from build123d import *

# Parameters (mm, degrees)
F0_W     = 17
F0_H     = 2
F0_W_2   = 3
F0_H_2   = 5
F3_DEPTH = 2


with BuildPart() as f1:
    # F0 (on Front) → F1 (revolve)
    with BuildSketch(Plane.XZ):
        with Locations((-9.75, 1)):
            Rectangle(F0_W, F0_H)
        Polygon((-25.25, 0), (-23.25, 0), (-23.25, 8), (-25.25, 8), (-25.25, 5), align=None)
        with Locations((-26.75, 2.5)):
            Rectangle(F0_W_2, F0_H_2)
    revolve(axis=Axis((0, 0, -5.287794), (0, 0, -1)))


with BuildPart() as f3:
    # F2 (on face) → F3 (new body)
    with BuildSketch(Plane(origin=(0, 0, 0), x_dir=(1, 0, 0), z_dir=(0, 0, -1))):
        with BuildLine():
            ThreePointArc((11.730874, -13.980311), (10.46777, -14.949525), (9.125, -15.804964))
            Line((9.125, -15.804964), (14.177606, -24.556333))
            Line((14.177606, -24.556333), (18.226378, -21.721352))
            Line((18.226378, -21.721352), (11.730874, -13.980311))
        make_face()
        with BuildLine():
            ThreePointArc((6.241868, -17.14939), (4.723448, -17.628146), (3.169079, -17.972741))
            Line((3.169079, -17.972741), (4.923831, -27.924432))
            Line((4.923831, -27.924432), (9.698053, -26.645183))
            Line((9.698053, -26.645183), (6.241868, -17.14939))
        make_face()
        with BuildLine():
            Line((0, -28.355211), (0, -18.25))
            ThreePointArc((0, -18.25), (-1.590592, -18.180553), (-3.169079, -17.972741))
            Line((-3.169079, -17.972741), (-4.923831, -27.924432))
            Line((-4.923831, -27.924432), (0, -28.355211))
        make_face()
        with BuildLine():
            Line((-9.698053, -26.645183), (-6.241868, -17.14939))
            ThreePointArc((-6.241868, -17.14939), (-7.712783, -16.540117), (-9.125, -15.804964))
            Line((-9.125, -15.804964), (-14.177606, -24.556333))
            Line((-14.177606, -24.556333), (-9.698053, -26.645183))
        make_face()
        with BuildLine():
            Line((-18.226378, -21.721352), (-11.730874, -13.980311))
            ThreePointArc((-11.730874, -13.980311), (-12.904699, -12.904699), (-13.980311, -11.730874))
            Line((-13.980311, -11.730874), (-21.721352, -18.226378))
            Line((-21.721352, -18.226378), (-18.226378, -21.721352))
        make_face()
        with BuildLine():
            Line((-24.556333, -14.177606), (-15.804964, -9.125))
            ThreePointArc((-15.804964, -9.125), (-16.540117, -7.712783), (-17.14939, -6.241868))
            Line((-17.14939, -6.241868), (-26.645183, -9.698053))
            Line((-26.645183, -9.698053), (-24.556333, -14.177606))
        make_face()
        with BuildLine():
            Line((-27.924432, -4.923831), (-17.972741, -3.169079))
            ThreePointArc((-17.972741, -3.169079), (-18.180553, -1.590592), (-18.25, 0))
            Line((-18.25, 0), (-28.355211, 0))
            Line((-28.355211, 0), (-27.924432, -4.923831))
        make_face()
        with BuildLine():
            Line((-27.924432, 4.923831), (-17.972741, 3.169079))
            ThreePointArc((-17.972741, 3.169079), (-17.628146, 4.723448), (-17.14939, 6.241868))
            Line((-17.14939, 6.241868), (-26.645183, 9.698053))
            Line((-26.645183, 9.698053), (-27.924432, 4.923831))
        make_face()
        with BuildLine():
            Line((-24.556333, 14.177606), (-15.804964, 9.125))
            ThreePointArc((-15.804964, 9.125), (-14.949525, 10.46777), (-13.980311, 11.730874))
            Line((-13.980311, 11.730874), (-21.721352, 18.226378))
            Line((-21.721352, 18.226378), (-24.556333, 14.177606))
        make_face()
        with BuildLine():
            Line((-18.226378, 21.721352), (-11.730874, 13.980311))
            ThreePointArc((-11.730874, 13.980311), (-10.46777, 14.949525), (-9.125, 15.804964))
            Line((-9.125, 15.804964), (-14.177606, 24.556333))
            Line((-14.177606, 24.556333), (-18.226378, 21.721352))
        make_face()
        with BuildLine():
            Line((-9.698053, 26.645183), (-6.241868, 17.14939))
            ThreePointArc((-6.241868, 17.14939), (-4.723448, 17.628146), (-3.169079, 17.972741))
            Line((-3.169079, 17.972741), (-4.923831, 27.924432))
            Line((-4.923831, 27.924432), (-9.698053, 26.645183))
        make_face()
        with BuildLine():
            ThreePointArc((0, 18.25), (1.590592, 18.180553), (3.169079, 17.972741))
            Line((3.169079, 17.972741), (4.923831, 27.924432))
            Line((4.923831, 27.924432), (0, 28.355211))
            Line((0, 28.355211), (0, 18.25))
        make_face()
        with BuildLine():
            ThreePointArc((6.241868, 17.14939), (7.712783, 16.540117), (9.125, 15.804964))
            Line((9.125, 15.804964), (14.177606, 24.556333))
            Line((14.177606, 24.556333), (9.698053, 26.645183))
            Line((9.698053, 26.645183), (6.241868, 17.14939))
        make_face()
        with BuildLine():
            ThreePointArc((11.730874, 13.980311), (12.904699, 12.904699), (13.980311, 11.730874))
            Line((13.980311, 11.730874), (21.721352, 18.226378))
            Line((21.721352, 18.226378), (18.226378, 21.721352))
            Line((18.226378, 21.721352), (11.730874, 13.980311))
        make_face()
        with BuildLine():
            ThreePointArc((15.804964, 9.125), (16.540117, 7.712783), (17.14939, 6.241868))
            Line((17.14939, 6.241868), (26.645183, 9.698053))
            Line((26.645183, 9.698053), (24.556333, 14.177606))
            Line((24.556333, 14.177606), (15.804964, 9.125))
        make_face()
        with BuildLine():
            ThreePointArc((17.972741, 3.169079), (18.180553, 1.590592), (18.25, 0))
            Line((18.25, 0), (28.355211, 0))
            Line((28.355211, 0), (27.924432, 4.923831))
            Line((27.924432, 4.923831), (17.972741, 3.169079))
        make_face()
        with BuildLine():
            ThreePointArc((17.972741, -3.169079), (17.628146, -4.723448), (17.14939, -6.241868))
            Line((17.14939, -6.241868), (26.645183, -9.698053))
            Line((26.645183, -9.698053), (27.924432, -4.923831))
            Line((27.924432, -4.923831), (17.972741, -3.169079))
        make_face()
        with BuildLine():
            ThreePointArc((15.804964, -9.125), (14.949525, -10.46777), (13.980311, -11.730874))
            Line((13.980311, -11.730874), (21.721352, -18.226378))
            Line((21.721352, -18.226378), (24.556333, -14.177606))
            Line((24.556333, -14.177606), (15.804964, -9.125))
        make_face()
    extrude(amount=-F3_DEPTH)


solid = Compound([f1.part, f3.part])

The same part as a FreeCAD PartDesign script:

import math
import FreeCAD as App
import Part
import Sketcher
Q = App.Units.Quantity

doc = App.newDocument("Part")
body = doc.addObject("PartDesign::Body", "Body")
body.AllowCompound = True

# Sketch on XZ plane
sketch1 = body.newObject("Sketcher::SketchObject", "Sketch")
sketch1.AttachmentSupport = (doc.getObject("XZ_Plane"), [""])
sketch1.MapMode = "FlatFace"
sketch1.addGeometry([
    Part.LineSegment(App.Vector(-18.25, 2, 0), App.Vector(-18.25, 0, 0)),  # 0
    Part.LineSegment(App.Vector(-18.25, 0, 0), App.Vector(-1.25, 0, 0)),  # 1
    Part.LineSegment(App.Vector(-1.25, 0, 0), App.Vector(-1.25, 2, 0)),  # 2
    Part.LineSegment(App.Vector(-1.25, 2, 0), App.Vector(-18.25, 2, 0)),  # 3
    Part.LineSegment(App.Vector(-23.25, 0, 0), App.Vector(-23.25, 8, 0)),  # 4
    Part.LineSegment(App.Vector(-23.25, 8, 0), App.Vector(-25.25, 8, 0)),  # 5
    Part.LineSegment(App.Vector(-25.25, 8, 0), App.Vector(-25.25, 5, 0)),  # 6
    Part.LineSegment(App.Vector(-25.25, 5, 0), App.Vector(-28.25, 5, 0)),  # 7
    Part.LineSegment(App.Vector(-28.25, 5, 0), App.Vector(-28.25, 0, 0)),  # 8
    Part.LineSegment(App.Vector(-28.25, 0, 0), App.Vector(-23.25, 0, 0)),  # 9
], False)
sketch1.addConstraint([
    Sketcher.Constraint("Coincident", 0, 2, 1, 1),
    Sketcher.Constraint("Coincident", 1, 2, 2, 1),
    Sketcher.Constraint("Coincident", 2, 2, 3, 1),
    Sketcher.Constraint("Coincident", 3, 2, 0, 1),
    Sketcher.Constraint("Coincident", 4, 2, 5, 1),
    Sketcher.Constraint("Coincident", 5, 2, 6, 1),
    Sketcher.Constraint("Coincident", 6, 2, 7, 1),
    Sketcher.Constraint("Coincident", 7, 2, 8, 1),
    Sketcher.Constraint("Coincident", 8, 2, 9, 1),
    Sketcher.Constraint("Coincident", 9, 2, 4, 1),
    Sketcher.Constraint("Vertical", 0),
    Sketcher.Constraint("Horizontal", 1),
    Sketcher.Constraint("Vertical", 2),
    Sketcher.Constraint("Horizontal", 3),
    Sketcher.Constraint("Vertical", 4),
    Sketcher.Constraint("Horizontal", 5),
    Sketcher.Constraint("Vertical", 6),
    Sketcher.Constraint("Horizontal", 7),
    Sketcher.Constraint("Vertical", 8),
    Sketcher.Constraint("Horizontal", 9),
    Sketcher.Constraint("PointOnObject", 0, 2, -1),
    Sketcher.Constraint("PointOnObject", 8, 2, -1),
    Sketcher.Constraint("Equal", 5, 0),
    Sketcher.Constraint("Equal", 7, 6),
    Sketcher.Constraint("Equal", 9, 8),
    Sketcher.Constraint("DistanceX", 1, 1, 1, 2, 17.0),
    Sketcher.Constraint("DistanceX", 5, 2, 5, 1, 2.0),
    Sketcher.Constraint("DistanceX", 7, 2, 7, 1, 3.0),
    Sketcher.Constraint("DistanceX", 4, 2, 3, 2, 5.0),
    Sketcher.Constraint("DistanceX", 0, 2, -1, 1, 18.25),
])
revolution = body.newObject("PartDesign::Revolution", "Revolution")
revolution.Profile = sketch1
revolution.ReferenceAxis = (sketch1, ["V_Axis"])
revolution.Angle = 360
body2 = doc.addObject("PartDesign::Body", "Body001")
body2.AllowCompound = True

# Sketch on XY plane
sketch2 = body2.newObject("Sketcher::SketchObject", "Sketch001")
sketch2.AttachmentSupport = (doc.getObject("XY_Plane001"), [""])
sketch2.MapMode = "FlatFace"
sketch2.addGeometry([
    Part.ArcOfCircle(Part.Circle(App.Vector(0, 0.000003, 0), App.Vector(0, 0, 1), 18.249998), math.radians(49.999993), math.radians(59.999995)),  # 0
    Part.LineSegment(App.Vector(9.125, 15.804964, 0), App.Vector(14.177606, 24.556333, 0)),  # 1
    Part.LineSegment(App.Vector(14.177606, 24.556333, 0), App.Vector(18.226378, 21.721352, 0)),  # 2
    Part.LineSegment(App.Vector(18.226378, 21.721352, 0), App.Vector(11.730874, 13.980311, 0)),  # 3
    Part.ArcOfCircle(Part.Circle(App.Vector(0.000012, 0.000036, 0), App.Vector(0, 0, 1), 18.249962), math.radians(69.999994), math.radians(80.000017)),  # 4
    Part.LineSegment(App.Vector(3.169079, 17.972741, 0), App.Vector(4.923831, 27.924432, 0)),  # 5
    Part.LineSegment(App.Vector(4.923831, 27.924432, 0), App.Vector(9.698053, 26.645183, 0)),  # 6
    Part.LineSegment(App.Vector(9.698053, 26.645183, 0), App.Vector(6.241868, 17.14939, 0)),  # 7
    Part.LineSegment(App.Vector(0, 28.355211, 0), App.Vector(0, 18.25, 0)),  # 8
    Part.ArcOfCircle(Part.Circle(App.Vector(0.000003, 0, 0), App.Vector(0, 0, 1), 18.25), math.radians(90.00001), math.radians(100.000009)),  # 9
    Part.LineSegment(App.Vector(-3.169079, 17.972741, 0), App.Vector(-4.923831, 27.924432, 0)),  # 10
    Part.LineSegment(App.Vector(-4.923831, 27.924432, 0), App.Vector(0, 28.355211, 0)),  # 11
    Part.LineSegment(App.Vector(-9.698053, 26.645183, 0), App.Vector(-6.241868, 17.14939, 0)),  # 12
    Part.ArcOfCircle(Part.Circle(App.Vector(0.00003, -0.000072, 0), App.Vector(0, 0, 1), 18.250077), math.radians(110.000014), math.radians(119.999969)),  # 13
    Part.LineSegment(App.Vector(-9.125, 15.804964, 0), App.Vector(-14.177606, 24.556333, 0)),  # 14
    Part.LineSegment(App.Vector(-14.177606, 24.556333, 0), App.Vector(-9.698053, 26.645183, 0)),  # 15
    Part.LineSegment(App.Vector(-18.226378, 21.721352, 0), App.Vector(-11.730874, 13.980311, 0)),  # 16
    Part.ArcOfCircle(Part.Circle(App.Vector(-0.000062, 0.000062, 0), App.Vector(0, 0, 1), 18.249913), math.radians(129.999977), math.radians(140.000023)),  # 17
    Part.LineSegment(App.Vector(-13.980311, 11.730874, 0), App.Vector(-21.721352, 18.226378, 0)),  # 18
    Part.LineSegment(App.Vector(-21.721352, 18.226378, 0), App.Vector(-18.226378, 21.721352, 0)),  # 19
    Part.LineSegment(App.Vector(-24.556333, 14.177606, 0), App.Vector(-15.804964, 9.125, 0)),  # 20
    Part.ArcOfCircle(Part.Circle(App.Vector(0.000072, -0.00003, 0), App.Vector(0, 0, 1), 18.250077), math.radians(150.000031), math.radians(159.999986)),  # 21
    Part.LineSegment(App.Vector(-17.14939, 6.241868, 0), App.Vector(-26.645183, 9.698053, 0)),  # 22
    Part.LineSegment(App.Vector(-26.645183, 9.698053, 0), App.Vector(-24.556333, 14.177606, 0)),  # 23
    Part.LineSegment(App.Vector(-27.924432, 4.923831, 0), App.Vector(-17.972741, 3.169079, 0)),  # 24
    Part.ArcOfCircle(Part.Circle(App.Vector(0, -0.000003, 0), App.Vector(0, 0, 1), 18.25), math.radians(169.999991), math.radians(179.99999)),  # 25
    Part.LineSegment(App.Vector(-18.25, 0, 0), App.Vector(-28.355211, 0, 0)),  # 26
    Part.LineSegment(App.Vector(-28.355211, 0, 0), App.Vector(-27.924432, 4.923831, 0)),  # 27
    Part.LineSegment(App.Vector(-27.924432, -4.923831, 0), App.Vector(-17.972741, -3.169079, 0)),  # 28
    Part.ArcOfCircle(Part.Circle(App.Vector(-0.000036, -0.000012, 0), App.Vector(0, 0, 1), 18.249962), math.radians(-170.000017), math.radians(-159.999994)),  # 29
    Part.LineSegment(App.Vector(-17.14939, -6.241868, 0), App.Vector(-26.645183, -9.698053, 0)),  # 30
    Part.LineSegment(App.Vector(-26.645183, -9.698053, 0), App.Vector(-27.924432, -4.923831, 0)),  # 31
    Part.LineSegment(App.Vector(-24.556333, -14.177606, 0), App.Vector(-15.804964, -9.125, 0)),  # 32
    Part.ArcOfCircle(Part.Circle(App.Vector(-0.000003, 0, 0), App.Vector(0, 0, 1), 18.249998), math.radians(-149.999995), math.radians(-139.999993)),  # 33
    Part.LineSegment(App.Vector(-13.980311, -11.730874, 0), App.Vector(-21.721352, -18.226378, 0)),  # 34
    Part.LineSegment(App.Vector(-21.721352, -18.226378, 0), App.Vector(-24.556333, -14.177606, 0)),  # 35
    Part.LineSegment(App.Vector(-18.226378, -21.721352, 0), App.Vector(-11.730874, -13.980311, 0)),  # 36
    Part.ArcOfCircle(Part.Circle(App.Vector(0, -0.000003, 0), App.Vector(0, 0, 1), 18.249998), math.radians(-130.000007), math.radians(-120.000005)),  # 37
    Part.LineSegment(App.Vector(-9.125, -15.804964, 0), App.Vector(-14.177606, -24.556333, 0)),  # 38
    Part.LineSegment(App.Vector(-14.177606, -24.556333, 0), App.Vector(-18.226378, -21.721352, 0)),  # 39
    Part.LineSegment(App.Vector(-9.698053, -26.645183, 0), App.Vector(-6.241868, -17.14939, 0)),  # 40
    Part.ArcOfCircle(Part.Circle(App.Vector(-0.000012, -0.000036, 0), App.Vector(0, 0, 1), 18.249962), math.radians(-110.000006), math.radians(-99.999983)),  # 41
    Part.LineSegment(App.Vector(-3.169079, -17.972741, 0), App.Vector(-4.923831, -27.924432, 0)),  # 42
    Part.LineSegment(App.Vector(-4.923831, -27.924432, 0), App.Vector(-9.698053, -26.645183, 0)),  # 43
    Part.ArcOfCircle(Part.Circle(App.Vector(-0.000003, 0, 0), App.Vector(0, 0, 1), 18.25), math.radians(-89.99999), math.radians(-79.999991)),  # 44
    Part.LineSegment(App.Vector(3.169079, -17.972741, 0), App.Vector(4.923831, -27.924432, 0)),  # 45
    Part.LineSegment(App.Vector(4.923831, -27.924432, 0), App.Vector(0, -28.355211, 0)),  # 46
    Part.LineSegment(App.Vector(0, -28.355211, 0), App.Vector(0, -18.25, 0)),  # 47
    Part.ArcOfCircle(Part.Circle(App.Vector(-0.00003, 0.000072, 0), App.Vector(0, 0, 1), 18.250077), math.radians(-69.999986), math.radians(-60.000031)),  # 48
    Part.LineSegment(App.Vector(9.125, -15.804964, 0), App.Vector(14.177606, -24.556333, 0)),  # 49
    Part.LineSegment(App.Vector(14.177606, -24.556333, 0), App.Vector(9.698053, -26.645183, 0)),  # 50
    Part.LineSegment(App.Vector(9.698053, -26.645183, 0), App.Vector(6.241868, -17.14939, 0)),  # 51
    Part.ArcOfCircle(Part.Circle(App.Vector(0.000062, -0.000062, 0), App.Vector(0, 0, 1), 18.249913), math.radians(-50.000023), math.radians(-39.999977)),  # 52
    Part.LineSegment(App.Vector(13.980311, -11.730874, 0), App.Vector(21.721352, -18.226378, 0)),  # 53
    Part.LineSegment(App.Vector(21.721352, -18.226378, 0), App.Vector(18.226378, -21.721352, 0)),  # 54
    Part.LineSegment(App.Vector(18.226378, -21.721352, 0), App.Vector(11.730874, -13.980311, 0)),  # 55
    Part.ArcOfCircle(Part.Circle(App.Vector(-0.000072, 0.00003, 0), App.Vector(0, 0, 1), 18.250077), math.radians(-29.999969), math.radians(-20.000014)),  # 56
    Part.LineSegment(App.Vector(17.14939, -6.241868, 0), App.Vector(26.645183, -9.698053, 0)),  # 57
    Part.LineSegment(App.Vector(26.645183, -9.698053, 0), App.Vector(24.556333, -14.177606, 0)),  # 58
    Part.LineSegment(App.Vector(24.556333, -14.177606, 0), App.Vector(15.804964, -9.125, 0)),  # 59
    Part.ArcOfCircle(Part.Circle(App.Vector(0, 0.000003, 0), App.Vector(0, 0, 1), 18.25), math.radians(-10.000009), math.radians(-0.00001)),  # 60
    Part.LineSegment(App.Vector(18.25, 0, 0), App.Vector(28.355211, 0, 0)),  # 61
    Part.LineSegment(App.Vector(28.355211, 0, 0), App.Vector(27.924432, -4.923831, 0)),  # 62
    Part.LineSegment(App.Vector(27.924432, -4.923831, 0), App.Vector(17.972741, -3.169079, 0)),  # 63
    Part.ArcOfCircle(Part.Circle(App.Vector(0.000036, 0.000012, 0), App.Vector(0, 0, 1), 18.249962), math.radians(9.999983), math.radians(20.000006)),  # 64
    Part.LineSegment(App.Vector(17.14939, 6.241868, 0), App.Vector(26.645183, 9.698053, 0)),  # 65
    Part.LineSegment(App.Vector(26.645183, 9.698053, 0), App.Vector(27.924432, 4.923831, 0)),  # 66
    Part.LineSegment(App.Vector(27.924432, 4.923831, 0), App.Vector(17.972741, 3.169079, 0)),  # 67
    Part.ArcOfCircle(Part.Circle(App.Vector(0.000003, 0, 0), App.Vector(0, 0, 1), 18.249998), math.radians(30.000005), math.radians(40.000007)),  # 68
    Part.LineSegment(App.Vector(13.980311, 11.730874, 0), App.Vector(21.721352, 18.226378, 0)),  # 69
    Part.LineSegment(App.Vector(21.721352, 18.226378, 0), App.Vector(24.556333, 14.177606, 0)),  # 70
    Part.LineSegment(App.Vector(24.556333, 14.177606, 0), App.Vector(15.804964, 9.125, 0)),  # 71
], False)
sketch2.addConstraint([
    Sketcher.Constraint("Coincident", 0, 2, 1, 1),
    Sketcher.Constraint("Coincident", 1, 2, 2, 1),
    Sketcher.Constraint("Coincident", 2, 2, 3, 1),
    Sketcher.Constraint("Coincident", 3, 2, 0, 1),
    Sketcher.Constraint("Coincident", 4, 2, 5, 1),
    Sketcher.Constraint("Coincident", 5, 2, 6, 1),
    Sketcher.Constraint("Coincident", 6, 2, 7, 1),
    Sketcher.Constraint("Coincident", 7, 2, 4, 1),
    Sketcher.Constraint("Coincident", 8, 2, 9, 1),
    Sketcher.Constraint("Coincident", 9, 2, 10, 1),
    Sketcher.Constraint("Coincident", 10, 2, 11, 1),
    Sketcher.Constraint("Coincident", 11, 2, 8, 1),
    Sketcher.Constraint("Coincident", 12, 2, 13, 1),
    Sketcher.Constraint("Coincident", 13, 2, 14, 1),
    Sketcher.Constraint("Coincident", 14, 2, 15, 1),
    Sketcher.Constraint("Coincident", 15, 2, 12, 1),
    Sketcher.Constraint("Coincident", 16, 2, 17, 1),
    Sketcher.Constraint("Coincident", 17, 2, 18, 1),
    Sketcher.Constraint("Coincident", 18, 2, 19, 1),
    Sketcher.Constraint("Coincident", 19, 2, 16, 1),
    Sketcher.Constraint("Coincident", 20, 2, 21, 1),
    Sketcher.Constraint("Coincident", 21, 2, 22, 1),
    Sketcher.Constraint("Coincident", 22, 2, 23, 1),
    Sketcher.Constraint("Coincident", 23, 2, 20, 1),
    Sketcher.Constraint("Coincident", 24, 2, 25, 1),
    Sketcher.Constraint("Coincident", 25, 2, 26, 1),
    Sketcher.Constraint("Coincident", 26, 2, 27, 1),
    Sketcher.Constraint("Coincident", 27, 2, 24, 1),
    Sketcher.Constraint("Coincident", 28, 2, 29, 1),
    Sketcher.Constraint("Coincident", 29, 2, 30, 1),
    Sketcher.Constraint("Coincident", 30, 2, 31, 1),
    Sketcher.Constraint("Coincident", 31, 2, 28, 1),
    Sketcher.Constraint("Coincident", 32, 2, 33, 1),
    Sketcher.Constraint("Coincident", 33, 2, 34, 1),
    Sketcher.Constraint("Coincident", 34, 2, 35, 1),
    Sketcher.Constraint("Coincident", 35, 2, 32, 1),
    Sketcher.Constraint("Coincident", 36, 2, 37, 1),
    Sketcher.Constraint("Coincident", 37, 2, 38, 1),
    Sketcher.Constraint("Coincident", 38, 2, 39, 1),
    Sketcher.Constraint("Coincident", 39, 2, 36, 1),
    Sketcher.Constraint("Coincident", 40, 2, 41, 1),
    Sketcher.Constraint("Coincident", 41, 2, 42, 1),
    Sketcher.Constraint("Coincident", 42, 2, 43, 1),
    Sketcher.Constraint("Coincident", 43, 2, 40, 1),
    Sketcher.Constraint("Coincident", 44, 2, 45, 1),
    Sketcher.Constraint("Coincident", 45, 2, 46, 1),
    Sketcher.Constraint("Coincident", 46, 2, 47, 1),
    Sketcher.Constraint("Coincident", 47, 2, 44, 1),
    Sketcher.Constraint("Coincident", 48, 2, 49, 1),
    Sketcher.Constraint("Coincident", 49, 2, 50, 1),
    Sketcher.Constraint("Coincident", 50, 2, 51, 1),
    Sketcher.Constraint("Coincident", 51, 2, 48, 1),
    Sketcher.Constraint("Coincident", 52, 2, 53, 1),
    Sketcher.Constraint("Coincident", 53, 2, 54, 1),
    Sketcher.Constraint("Coincident", 54, 2, 55, 1),
    Sketcher.Constraint("Coincident", 55, 2, 52, 1),
    Sketcher.Constraint("Coincident", 56, 2, 57, 1),
    Sketcher.Constraint("Coincident", 57, 2, 58, 1),
    Sketcher.Constraint("Coincident", 58, 2, 59, 1),
    Sketcher.Constraint("Coincident", 59, 2, 56, 1),
    Sketcher.Constraint("Coincident", 60, 2, 61, 1),
    Sketcher.Constraint("Coincident", 61, 2, 62, 1),
    Sketcher.Constraint("Coincident", 62, 2, 63, 1),
    Sketcher.Constraint("Coincident", 63, 2, 60, 1),
    Sketcher.Constraint("Coincident", 64, 2, 65, 1),
    Sketcher.Constraint("Coincident", 65, 2, 66, 1),
    Sketcher.Constraint("Coincident", 66, 2, 67, 1),
    Sketcher.Constraint("Coincident", 67, 2, 64, 1),
    Sketcher.Constraint("Coincident", 68, 2, 69, 1),
    Sketcher.Constraint("Coincident", 69, 2, 70, 1),
    Sketcher.Constraint("Coincident", 70, 2, 71, 1),
    Sketcher.Constraint("Coincident", 71, 2, 68, 1),
    Sketcher.Constraint("Vertical", 8),
    Sketcher.Constraint("Horizontal", 26),
    Sketcher.Constraint("Vertical", 47),
    Sketcher.Constraint("Horizontal", 61),
    Sketcher.Constraint("Coincident", 0, 3, -1, 1),
    Sketcher.Constraint("Coincident", 9, 3, -1, 1),
    Sketcher.Constraint("Coincident", 25, 3, -1, 1),
    Sketcher.Constraint("Coincident", 33, 3, -1, 1),
    Sketcher.Constraint("Coincident", 37, 3, -1, 1),
    Sketcher.Constraint("Coincident", 44, 3, -1, 1),
    Sketcher.Constraint("Coincident", 60, 3, -1, 1),
    Sketcher.Constraint("Coincident", 68, 3, -1, 1),
    Sketcher.Constraint("Equal", 0, 9),
    Sketcher.Constraint("Equal", 13, 21),
    Sketcher.Constraint("Equal", 9, 25),
    Sketcher.Constraint("Equal", 4, 29),
    Sketcher.Constraint("Equal", 25, 33),
    Sketcher.Constraint("Equal", 33, 37),
    Sketcher.Constraint("Equal", 29, 41),
    Sketcher.Constraint("Equal", 37, 44),
    Sketcher.Constraint("Equal", 21, 48),
    Sketcher.Constraint("Equal", 17, 52),
    Sketcher.Constraint("Equal", 48, 56),
    Sketcher.Constraint("Equal", 44, 60),
    Sketcher.Constraint("Equal", 41, 64),
    Sketcher.Constraint("Equal", 60, 68),
    Sketcher.Constraint("Symmetric", 4, 3, 41, 3, -1, 1),
    Sketcher.Constraint("Symmetric", 13, 3, 48, 3, -1, 1),
    Sketcher.Constraint("Symmetric", 17, 3, 52, 3, -1, 1),
    Sketcher.Constraint("Symmetric", 21, 3, 56, 3, -1, 1),
    Sketcher.Constraint("Symmetric", 29, 3, 64, 3, -1, 1),
    Sketcher.Constraint("Symmetric", 1, 2, 38, 2, -1, 1),
    Sketcher.Constraint("Symmetric", 2, 2, 39, 2, -1, 1),
    Sketcher.Constraint("Symmetric", 5, 2, 42, 2, -1, 1),
    Sketcher.Constraint("Symmetric", 6, 2, 43, 2, -1, 1),
    Sketcher.Constraint("Symmetric", 10, 2, 45, 2, -1, 1),
    Sketcher.Constraint("Symmetric", 11, 2, 46, 2, -1, 1),
    Sketcher.Constraint("Symmetric", 14, 2, 49, 2, -1, 1),
    Sketcher.Constraint("Symmetric", 15, 2, 50, 2, -1, 1),
    Sketcher.Constraint("Symmetric", 18, 2, 53, 2, -1, 1),
    Sketcher.Constraint("Symmetric", 19, 2, 54, 2, -1, 1),
    Sketcher.Constraint("Symmetric", 22, 2, 57, 2, -1, 1),
    Sketcher.Constraint("Symmetric", 23, 2, 58, 2, -1, 1),
    Sketcher.Constraint("Symmetric", 26, 2, 61, 2, -1, 1),
    Sketcher.Constraint("Symmetric", 27, 2, 62, 2, -1, 1),
    Sketcher.Constraint("Symmetric", 30, 2, 65, 2, -1, 1),
    Sketcher.Constraint("Symmetric", 31, 2, 66, 2, -1, 1),
    Sketcher.Constraint("Symmetric", 34, 2, 69, 2, -1, 1),
    Sketcher.Constraint("Symmetric", 35, 2, 70, 2, -1, 1),
    Sketcher.Constraint("Symmetric", 4, 2, 9, 2, -2),
    Sketcher.Constraint("Symmetric", 5, 2, 10, 2, -2),
    Sketcher.Constraint("Symmetric", 7, 2, 12, 2, -2),
    Sketcher.Constraint("Symmetric", 0, 2, 13, 2, -2),
    Sketcher.Constraint("Symmetric", 1, 2, 14, 2, -2),
    Sketcher.Constraint("Symmetric", 6, 2, 15, 2, -2),
    Sketcher.Constraint("Symmetric", 3, 2, 16, 2, -2),
    Sketcher.Constraint("Symmetric", 2, 2, 19, 2, -2),
    Sketcher.Constraint("Symmetric", 33, 2, 52, 2, -2),
    Sketcher.Constraint("Symmetric", 34, 2, 53, 2, -2),
    Sketcher.Constraint("Symmetric", 29, 2, 56, 2, -2),
    Sketcher.Constraint("Symmetric", 30, 2, 57, 2, -2),
    Sketcher.Constraint("Symmetric", 35, 2, 58, 2, -2),
    Sketcher.Constraint("Symmetric", 32, 2, 59, 2, -2),
    Sketcher.Constraint("Symmetric", 31, 2, 62, 2, -2),
    Sketcher.Constraint("Symmetric", 28, 2, 63, 2, -2),
    Sketcher.Constraint("PointOnObject", 8, 2, -2),
    Sketcher.Constraint("PointOnObject", 25, 2, -1),
    Sketcher.Constraint("Perpendicular", 3, 18),
    Sketcher.Constraint("Perpendicular", 1, 20),
    Sketcher.Constraint("Perpendicular", 7, 22),
    Sketcher.Constraint("Perpendicular", 5, 24),
    Sketcher.Constraint("Perpendicular", 10, 28),
    Sketcher.Constraint("Perpendicular", 12, 30),
    Sketcher.Constraint("Perpendicular", 14, 32),
    Sketcher.Constraint("Perpendicular", 16, 34),
    Sketcher.Constraint("Perpendicular", 18, 36),
    Sketcher.Constraint("Perpendicular", 20, 38),
    Sketcher.Constraint("Perpendicular", 22, 40),
    Sketcher.Constraint("Perpendicular", 24, 42),
    Sketcher.Constraint("Perpendicular", 28, 45),
    Sketcher.Constraint("Perpendicular", 32, 49),
    Sketcher.Constraint("Perpendicular", 30, 51),
    Sketcher.Constraint("Perpendicular", 34, 55),
    Sketcher.Constraint("Perpendicular", 51, 65),
    Sketcher.Constraint("Perpendicular", 45, 67),
    Sketcher.Constraint("Perpendicular", 55, 69),
    Sketcher.Constraint("Perpendicular", 49, 71),
    Sketcher.Constraint("Equal", 61, 8),
    Sketcher.Constraint("Equal", 1, 3),
    Sketcher.Constraint("Equal", 3, 5),
    Sketcher.Constraint("Equal", 2, 6),
    Sketcher.Constraint("Equal", 5, 7),
    Sketcher.Constraint("Equal", 6, 11),
    Sketcher.Constraint("Equal", 11, 15),
    Sketcher.Constraint("Equal", 16, 18),
    Sketcher.Constraint("Equal", 15, 19),
    Sketcher.Constraint("Equal", 18, 20),
    Sketcher.Constraint("Equal", 20, 22),
    Sketcher.Constraint("Equal", 19, 23),
    Sketcher.Constraint("Equal", 22, 24),
    Sketcher.Constraint("Equal", 23, 27),
    Sketcher.Constraint("Equal", 27, 31),
    Sketcher.Constraint("Equal", 31, 35),
    Sketcher.Constraint("Angle", 1, Q("59.999996 deg")),
    Sketcher.Constraint("Angle", 3, Q("-129.999997 deg")),
    Sketcher.Constraint("Angle", 5, Q("79.999998 deg")),
    Sketcher.Constraint("Angle", 6, Q("-15.000001 deg")),
    Sketcher.Constraint("Angle", 7, Q("-109.999995 deg")),
    Sketcher.Constraint("Angle", 11, Q("4.999995 deg")),
    Sketcher.Constraint("Angle", 23, Q("64.999999 deg")),
    Sketcher.Constraint("Radius", 0, 18.249998),
    Sketcher.Constraint("Radius", 4, 18.249962),
    Sketcher.Constraint("Radius", 13, 18.250077),
    Sketcher.Constraint("Radius", 17, 18.249913),
    Sketcher.Constraint("DistanceX", 26, 2, 26, 1, 10.105211),
])
pad1 = body2.newObject("PartDesign::Pad", "Pad")
pad1.Profile = sketch2
pad1.Length = 2

doc.recompute()
